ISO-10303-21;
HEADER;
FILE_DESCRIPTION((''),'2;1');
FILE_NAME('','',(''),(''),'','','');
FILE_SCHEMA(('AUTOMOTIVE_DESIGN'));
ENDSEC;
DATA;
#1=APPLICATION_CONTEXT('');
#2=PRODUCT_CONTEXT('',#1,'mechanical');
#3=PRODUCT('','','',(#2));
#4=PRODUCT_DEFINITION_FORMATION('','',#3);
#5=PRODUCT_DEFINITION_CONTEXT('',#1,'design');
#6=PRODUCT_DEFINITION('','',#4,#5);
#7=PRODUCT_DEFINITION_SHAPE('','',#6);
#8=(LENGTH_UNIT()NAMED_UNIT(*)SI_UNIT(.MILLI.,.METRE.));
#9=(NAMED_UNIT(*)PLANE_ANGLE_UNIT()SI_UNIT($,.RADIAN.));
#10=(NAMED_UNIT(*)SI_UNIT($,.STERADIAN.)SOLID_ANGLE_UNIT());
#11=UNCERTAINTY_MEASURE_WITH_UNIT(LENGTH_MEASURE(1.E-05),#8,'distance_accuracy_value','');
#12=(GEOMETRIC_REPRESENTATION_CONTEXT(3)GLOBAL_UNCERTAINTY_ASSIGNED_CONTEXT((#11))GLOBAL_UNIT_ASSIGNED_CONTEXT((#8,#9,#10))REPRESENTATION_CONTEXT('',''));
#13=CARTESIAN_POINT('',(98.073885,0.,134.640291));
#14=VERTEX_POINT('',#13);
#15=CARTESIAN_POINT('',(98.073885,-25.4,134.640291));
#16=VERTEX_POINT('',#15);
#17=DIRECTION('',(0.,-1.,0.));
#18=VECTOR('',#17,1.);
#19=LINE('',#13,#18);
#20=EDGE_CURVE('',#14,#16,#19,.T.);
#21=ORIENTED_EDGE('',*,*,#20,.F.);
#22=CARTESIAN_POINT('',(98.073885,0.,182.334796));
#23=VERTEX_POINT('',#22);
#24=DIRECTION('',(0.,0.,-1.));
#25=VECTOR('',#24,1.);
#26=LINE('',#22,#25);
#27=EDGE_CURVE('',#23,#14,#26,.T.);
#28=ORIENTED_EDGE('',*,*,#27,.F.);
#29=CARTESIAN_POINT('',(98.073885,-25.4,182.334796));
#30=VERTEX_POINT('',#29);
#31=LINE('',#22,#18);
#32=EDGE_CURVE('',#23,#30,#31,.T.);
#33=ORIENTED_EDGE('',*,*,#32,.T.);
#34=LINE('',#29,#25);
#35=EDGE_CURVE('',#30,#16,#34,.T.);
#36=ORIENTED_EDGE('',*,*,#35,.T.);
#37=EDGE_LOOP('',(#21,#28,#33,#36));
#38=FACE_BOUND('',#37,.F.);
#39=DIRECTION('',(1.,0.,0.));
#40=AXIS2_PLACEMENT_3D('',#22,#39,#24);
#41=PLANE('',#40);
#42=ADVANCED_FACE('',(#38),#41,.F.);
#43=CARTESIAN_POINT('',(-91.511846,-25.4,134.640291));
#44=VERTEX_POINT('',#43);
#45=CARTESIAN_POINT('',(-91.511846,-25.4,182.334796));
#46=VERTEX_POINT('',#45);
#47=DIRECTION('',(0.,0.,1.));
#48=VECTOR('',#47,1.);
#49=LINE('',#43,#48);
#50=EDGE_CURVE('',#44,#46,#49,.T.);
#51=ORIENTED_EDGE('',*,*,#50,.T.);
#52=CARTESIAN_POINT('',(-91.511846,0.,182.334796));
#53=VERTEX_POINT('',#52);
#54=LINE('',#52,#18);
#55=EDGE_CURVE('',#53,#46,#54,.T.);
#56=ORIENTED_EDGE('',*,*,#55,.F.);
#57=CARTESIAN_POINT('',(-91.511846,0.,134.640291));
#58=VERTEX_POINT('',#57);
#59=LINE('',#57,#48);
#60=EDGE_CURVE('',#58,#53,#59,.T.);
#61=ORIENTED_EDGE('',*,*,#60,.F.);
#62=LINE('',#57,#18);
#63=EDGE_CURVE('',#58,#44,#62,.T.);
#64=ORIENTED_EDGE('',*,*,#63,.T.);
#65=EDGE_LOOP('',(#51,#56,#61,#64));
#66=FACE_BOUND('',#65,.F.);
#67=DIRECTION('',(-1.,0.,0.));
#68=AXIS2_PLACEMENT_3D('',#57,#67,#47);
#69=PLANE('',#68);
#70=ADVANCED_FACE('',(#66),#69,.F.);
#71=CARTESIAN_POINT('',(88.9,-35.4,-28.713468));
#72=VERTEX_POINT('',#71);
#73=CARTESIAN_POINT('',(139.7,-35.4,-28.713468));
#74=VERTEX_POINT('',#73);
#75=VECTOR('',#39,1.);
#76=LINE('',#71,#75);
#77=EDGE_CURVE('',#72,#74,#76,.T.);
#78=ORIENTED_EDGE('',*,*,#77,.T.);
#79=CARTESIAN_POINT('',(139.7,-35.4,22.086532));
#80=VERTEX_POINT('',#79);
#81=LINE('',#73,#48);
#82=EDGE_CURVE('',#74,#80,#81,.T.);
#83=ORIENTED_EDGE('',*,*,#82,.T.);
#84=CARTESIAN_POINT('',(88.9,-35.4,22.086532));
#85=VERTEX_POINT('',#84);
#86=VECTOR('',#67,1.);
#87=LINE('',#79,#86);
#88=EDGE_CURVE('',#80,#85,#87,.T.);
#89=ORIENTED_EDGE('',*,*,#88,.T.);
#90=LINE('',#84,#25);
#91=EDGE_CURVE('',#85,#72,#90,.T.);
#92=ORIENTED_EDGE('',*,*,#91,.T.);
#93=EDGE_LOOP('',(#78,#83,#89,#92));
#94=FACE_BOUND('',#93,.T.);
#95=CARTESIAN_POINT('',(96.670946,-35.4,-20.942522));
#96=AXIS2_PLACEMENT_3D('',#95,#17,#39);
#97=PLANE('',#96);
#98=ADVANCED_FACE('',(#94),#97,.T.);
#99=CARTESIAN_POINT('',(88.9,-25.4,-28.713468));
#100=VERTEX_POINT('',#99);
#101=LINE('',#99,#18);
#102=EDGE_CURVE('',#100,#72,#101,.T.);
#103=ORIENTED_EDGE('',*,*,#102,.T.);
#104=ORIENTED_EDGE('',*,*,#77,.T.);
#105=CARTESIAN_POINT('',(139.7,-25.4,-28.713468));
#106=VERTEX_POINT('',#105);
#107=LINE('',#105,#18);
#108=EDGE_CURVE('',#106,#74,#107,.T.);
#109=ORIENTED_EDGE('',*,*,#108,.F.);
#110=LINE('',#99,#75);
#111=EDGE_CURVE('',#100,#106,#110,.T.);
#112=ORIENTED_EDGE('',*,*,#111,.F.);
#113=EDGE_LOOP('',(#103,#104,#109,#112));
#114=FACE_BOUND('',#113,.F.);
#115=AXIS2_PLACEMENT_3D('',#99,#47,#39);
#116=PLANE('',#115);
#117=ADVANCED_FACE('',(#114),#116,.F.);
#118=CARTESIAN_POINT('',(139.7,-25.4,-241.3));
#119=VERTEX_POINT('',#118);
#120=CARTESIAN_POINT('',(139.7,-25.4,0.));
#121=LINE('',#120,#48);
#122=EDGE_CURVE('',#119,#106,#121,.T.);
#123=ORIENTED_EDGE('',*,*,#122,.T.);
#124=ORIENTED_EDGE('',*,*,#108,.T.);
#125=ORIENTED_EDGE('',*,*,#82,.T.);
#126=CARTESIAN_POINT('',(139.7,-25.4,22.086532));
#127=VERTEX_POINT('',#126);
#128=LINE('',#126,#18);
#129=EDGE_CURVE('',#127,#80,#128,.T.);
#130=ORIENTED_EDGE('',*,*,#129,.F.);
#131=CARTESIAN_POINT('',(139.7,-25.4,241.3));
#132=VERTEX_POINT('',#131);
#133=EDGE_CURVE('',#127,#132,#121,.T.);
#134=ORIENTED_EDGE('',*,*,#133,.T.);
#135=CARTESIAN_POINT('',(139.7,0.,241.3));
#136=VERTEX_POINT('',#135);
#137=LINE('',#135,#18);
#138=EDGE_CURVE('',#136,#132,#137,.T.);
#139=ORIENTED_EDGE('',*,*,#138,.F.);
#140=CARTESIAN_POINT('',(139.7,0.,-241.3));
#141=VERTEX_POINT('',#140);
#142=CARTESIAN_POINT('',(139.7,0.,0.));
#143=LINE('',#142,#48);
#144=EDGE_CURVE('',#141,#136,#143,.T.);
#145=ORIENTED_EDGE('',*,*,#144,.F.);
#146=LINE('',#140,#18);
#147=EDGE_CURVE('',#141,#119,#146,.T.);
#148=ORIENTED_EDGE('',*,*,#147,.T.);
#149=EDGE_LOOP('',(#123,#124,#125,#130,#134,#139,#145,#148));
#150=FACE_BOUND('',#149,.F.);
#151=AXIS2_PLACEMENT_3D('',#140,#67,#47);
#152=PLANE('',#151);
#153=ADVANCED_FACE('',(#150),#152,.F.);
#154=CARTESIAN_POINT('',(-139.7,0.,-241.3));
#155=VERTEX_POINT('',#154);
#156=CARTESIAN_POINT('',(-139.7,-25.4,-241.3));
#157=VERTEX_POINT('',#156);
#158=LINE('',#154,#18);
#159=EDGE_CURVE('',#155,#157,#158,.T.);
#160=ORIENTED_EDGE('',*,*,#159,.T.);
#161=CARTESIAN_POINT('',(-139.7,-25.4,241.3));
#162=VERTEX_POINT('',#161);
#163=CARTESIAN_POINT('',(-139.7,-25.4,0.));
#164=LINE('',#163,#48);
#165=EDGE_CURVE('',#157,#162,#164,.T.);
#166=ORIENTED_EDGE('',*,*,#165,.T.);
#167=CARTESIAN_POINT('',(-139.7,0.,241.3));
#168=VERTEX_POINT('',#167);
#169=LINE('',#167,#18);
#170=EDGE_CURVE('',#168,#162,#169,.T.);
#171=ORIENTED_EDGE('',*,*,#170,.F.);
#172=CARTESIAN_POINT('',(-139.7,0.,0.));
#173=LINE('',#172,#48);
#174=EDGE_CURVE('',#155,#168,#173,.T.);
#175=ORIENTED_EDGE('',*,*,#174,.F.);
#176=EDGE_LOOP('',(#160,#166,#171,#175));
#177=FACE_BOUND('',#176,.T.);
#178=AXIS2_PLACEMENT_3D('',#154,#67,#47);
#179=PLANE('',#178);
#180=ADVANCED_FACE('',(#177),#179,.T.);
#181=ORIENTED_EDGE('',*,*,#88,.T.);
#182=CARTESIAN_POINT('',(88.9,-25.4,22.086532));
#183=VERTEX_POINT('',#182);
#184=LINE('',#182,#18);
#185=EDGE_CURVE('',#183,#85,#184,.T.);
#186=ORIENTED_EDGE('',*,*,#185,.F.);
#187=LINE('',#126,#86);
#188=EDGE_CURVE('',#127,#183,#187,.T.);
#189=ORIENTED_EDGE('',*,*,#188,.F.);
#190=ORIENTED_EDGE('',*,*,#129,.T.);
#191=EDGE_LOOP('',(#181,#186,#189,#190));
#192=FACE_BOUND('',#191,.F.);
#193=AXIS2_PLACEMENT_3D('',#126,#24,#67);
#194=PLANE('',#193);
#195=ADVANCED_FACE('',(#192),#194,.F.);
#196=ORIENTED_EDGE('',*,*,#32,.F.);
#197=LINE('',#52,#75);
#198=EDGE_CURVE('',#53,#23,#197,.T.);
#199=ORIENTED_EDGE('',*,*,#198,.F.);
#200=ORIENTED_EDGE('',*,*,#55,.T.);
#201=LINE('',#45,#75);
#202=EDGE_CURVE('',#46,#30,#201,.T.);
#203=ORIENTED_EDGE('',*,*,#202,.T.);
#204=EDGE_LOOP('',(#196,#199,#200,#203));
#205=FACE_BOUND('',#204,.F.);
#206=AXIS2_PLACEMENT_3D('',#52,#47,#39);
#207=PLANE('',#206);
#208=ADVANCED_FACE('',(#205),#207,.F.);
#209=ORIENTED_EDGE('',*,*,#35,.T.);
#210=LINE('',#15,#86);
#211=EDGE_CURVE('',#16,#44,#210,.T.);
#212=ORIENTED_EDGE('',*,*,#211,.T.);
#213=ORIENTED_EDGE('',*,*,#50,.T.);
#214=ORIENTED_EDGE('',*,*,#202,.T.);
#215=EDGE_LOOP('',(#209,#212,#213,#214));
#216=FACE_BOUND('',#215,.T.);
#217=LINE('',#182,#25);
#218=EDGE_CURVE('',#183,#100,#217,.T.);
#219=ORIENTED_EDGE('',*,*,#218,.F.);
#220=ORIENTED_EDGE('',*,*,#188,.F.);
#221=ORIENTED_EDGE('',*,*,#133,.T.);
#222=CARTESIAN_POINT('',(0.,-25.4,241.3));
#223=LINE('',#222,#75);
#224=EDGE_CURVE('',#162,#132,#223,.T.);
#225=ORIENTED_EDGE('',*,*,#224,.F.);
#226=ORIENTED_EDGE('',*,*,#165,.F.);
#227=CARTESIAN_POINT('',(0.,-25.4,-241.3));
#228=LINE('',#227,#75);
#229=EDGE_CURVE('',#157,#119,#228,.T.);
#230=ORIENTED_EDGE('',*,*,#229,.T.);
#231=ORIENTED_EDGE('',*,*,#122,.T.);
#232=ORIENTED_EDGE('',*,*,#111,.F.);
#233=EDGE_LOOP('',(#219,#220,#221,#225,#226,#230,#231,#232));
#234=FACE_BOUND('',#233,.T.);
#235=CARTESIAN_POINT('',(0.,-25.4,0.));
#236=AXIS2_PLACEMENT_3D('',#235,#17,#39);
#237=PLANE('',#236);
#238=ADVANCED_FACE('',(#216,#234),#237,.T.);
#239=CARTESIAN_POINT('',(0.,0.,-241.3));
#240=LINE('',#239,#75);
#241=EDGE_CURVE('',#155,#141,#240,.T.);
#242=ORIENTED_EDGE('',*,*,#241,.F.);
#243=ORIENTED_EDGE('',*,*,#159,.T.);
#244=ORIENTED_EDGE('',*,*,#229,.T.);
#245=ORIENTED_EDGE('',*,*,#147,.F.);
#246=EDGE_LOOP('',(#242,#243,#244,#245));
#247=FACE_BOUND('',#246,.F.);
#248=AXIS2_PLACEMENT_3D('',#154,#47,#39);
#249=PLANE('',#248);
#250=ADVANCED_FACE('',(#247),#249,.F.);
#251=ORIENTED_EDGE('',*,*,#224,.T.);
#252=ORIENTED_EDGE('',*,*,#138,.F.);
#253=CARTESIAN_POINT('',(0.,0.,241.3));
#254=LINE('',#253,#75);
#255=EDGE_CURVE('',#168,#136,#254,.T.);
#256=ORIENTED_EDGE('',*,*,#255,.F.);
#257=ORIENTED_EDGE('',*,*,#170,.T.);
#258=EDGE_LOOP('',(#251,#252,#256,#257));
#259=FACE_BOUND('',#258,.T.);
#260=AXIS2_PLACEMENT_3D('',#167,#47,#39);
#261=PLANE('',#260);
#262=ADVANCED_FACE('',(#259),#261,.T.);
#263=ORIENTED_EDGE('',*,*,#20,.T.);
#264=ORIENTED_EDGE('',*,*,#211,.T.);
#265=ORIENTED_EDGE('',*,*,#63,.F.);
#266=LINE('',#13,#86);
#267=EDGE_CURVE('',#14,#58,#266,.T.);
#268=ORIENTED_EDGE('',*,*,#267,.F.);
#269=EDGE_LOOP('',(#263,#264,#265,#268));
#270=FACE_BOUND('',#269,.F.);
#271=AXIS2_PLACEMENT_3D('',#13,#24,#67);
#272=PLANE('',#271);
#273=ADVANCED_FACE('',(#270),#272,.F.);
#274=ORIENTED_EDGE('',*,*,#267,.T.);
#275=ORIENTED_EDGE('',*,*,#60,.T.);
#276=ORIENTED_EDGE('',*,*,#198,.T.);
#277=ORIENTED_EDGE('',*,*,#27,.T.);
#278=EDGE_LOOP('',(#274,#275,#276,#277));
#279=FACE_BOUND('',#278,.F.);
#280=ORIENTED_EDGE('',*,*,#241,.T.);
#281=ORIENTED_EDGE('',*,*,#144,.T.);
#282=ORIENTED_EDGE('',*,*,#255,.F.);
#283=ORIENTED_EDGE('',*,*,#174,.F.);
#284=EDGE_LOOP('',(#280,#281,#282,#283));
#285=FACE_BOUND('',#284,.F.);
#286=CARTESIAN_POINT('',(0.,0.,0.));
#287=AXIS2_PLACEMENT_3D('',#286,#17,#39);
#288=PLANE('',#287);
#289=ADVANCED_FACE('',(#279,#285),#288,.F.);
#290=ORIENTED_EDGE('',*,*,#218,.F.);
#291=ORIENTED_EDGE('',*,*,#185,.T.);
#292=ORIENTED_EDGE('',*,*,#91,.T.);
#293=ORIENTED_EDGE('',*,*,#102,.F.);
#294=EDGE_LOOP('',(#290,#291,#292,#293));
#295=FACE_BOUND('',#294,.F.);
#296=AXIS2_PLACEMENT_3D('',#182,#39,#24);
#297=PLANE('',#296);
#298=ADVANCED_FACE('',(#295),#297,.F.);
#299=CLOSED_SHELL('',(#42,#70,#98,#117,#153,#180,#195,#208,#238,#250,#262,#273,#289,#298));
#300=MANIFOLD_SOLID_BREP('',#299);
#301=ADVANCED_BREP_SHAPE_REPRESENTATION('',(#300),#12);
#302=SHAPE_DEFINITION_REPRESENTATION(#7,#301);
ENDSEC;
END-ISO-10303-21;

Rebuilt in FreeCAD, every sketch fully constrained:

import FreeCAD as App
import Part
import Sketcher

V = App.Vector
Q = App.Units.Quantity


def add_polygon(sketch, points):
    """Adds a closed chain of lines whose ends are joined by coincident constraints."""
    first, n = sketch.GeometryCount, len(points)
    for a, b in zip(points, points[1:] + points[:1]):
        sketch.addGeometry(Part.LineSegment(App.Vector(*a, 0), App.Vector(*b, 0)), False)
    for i in range(n):
        sketch.addConstraint(Sketcher.Constraint("Coincident", first + i, 2, first + (i + 1) % n, 1))

doc = App.newDocument("Part")
body = doc.addObject("PartDesign::Body", "Body")

sketch1 = body.newObject("Sketcher::SketchObject", "Sketch")
sketch1.AttachmentSupport = (doc.getObject("XZ_Plane"), [""])
sketch1.MapMode = "FlatFace"
add_polygon(sketch1, [(-140, 241), (-140, -241), (140, -241), (140, 241)])
add_polygon(sketch1, [(-92, 135), (-92, 182), (98, 182), (98, 135)])
sketch1.addConstraint([
    Sketcher.Constraint("Vertical", 0),
    Sketcher.Constraint("Horizontal", 1),
    Sketcher.Constraint("Vertical", 2),
    Sketcher.Constraint("Horizontal", 3),
    Sketcher.Constraint("Vertical", 4),
    Sketcher.Constraint("Horizontal", 5),
    Sketcher.Constraint("Vertical", 6),
    Sketcher.Constraint("Horizontal", 7),
    Sketcher.Constraint("Symmetric", 0, 2, 2, 2, -1, 1),
    Sketcher.Constraint("DistanceX", 1, 1, 1, 2, Q("11 in")),
    Sketcher.Constraint("DistanceY", 0, 2, 0, 1, Q("19 in")),
    Sketcher.Constraint("DistanceX", 5, 1, 5, 2, Q("189.585731 mm")),
    Sketcher.Constraint("DistanceY", 4, 1, 4, 2, Q("47.694505 mm")),
    Sketcher.Constraint("DistanceY", -1, 1, 6, 2, Q("134.640291 mm")),
    Sketcher.Constraint("DistanceX", 4, 2, -1, 1, Q("91.511846 mm")),
])
pad1 = body.newObject("PartDesign::Pad", "Pad")
pad1.Profile = sketch1
pad1.Length = Q("1 in")

sketch2 = body.newObject("Sketcher::SketchObject", "Sketch001")
sketch2.AttachmentSupport = (doc.getObject("XZ_Plane"), [""])
sketch2.MapMode = "FlatFace"
sketch2.AttachmentOffset = App.Placement(V(0, 0, 1 * 25.4), App.Rotation())
add_polygon(sketch2, [(89, -29), (140, -29), (140, 22), (89, 22)])
sketch2.addConstraint([
    Sketcher.Constraint("Horizontal", 0),
    Sketcher.Constraint("Vertical", 1),
    Sketcher.Constraint("Horizontal", 2),
    Sketcher.Constraint("Vertical", 3),
    Sketcher.Constraint("Equal", 2, 1),
    Sketcher.Constraint("DistanceX", 0, 1, 0, 2, Q("2 in")),
    Sketcher.Constraint("DistanceX", -1, 1, 0, 2, Q("5.5 in")),
    Sketcher.Constraint("DistanceY", -1, 1, 1, 2, Q("22.086532 mm")),
])
pad2 = body.newObject("PartDesign::Pad", "Pad001")
pad2.Profile = sketch2
pad2.Length = 10

doc.recompute()
